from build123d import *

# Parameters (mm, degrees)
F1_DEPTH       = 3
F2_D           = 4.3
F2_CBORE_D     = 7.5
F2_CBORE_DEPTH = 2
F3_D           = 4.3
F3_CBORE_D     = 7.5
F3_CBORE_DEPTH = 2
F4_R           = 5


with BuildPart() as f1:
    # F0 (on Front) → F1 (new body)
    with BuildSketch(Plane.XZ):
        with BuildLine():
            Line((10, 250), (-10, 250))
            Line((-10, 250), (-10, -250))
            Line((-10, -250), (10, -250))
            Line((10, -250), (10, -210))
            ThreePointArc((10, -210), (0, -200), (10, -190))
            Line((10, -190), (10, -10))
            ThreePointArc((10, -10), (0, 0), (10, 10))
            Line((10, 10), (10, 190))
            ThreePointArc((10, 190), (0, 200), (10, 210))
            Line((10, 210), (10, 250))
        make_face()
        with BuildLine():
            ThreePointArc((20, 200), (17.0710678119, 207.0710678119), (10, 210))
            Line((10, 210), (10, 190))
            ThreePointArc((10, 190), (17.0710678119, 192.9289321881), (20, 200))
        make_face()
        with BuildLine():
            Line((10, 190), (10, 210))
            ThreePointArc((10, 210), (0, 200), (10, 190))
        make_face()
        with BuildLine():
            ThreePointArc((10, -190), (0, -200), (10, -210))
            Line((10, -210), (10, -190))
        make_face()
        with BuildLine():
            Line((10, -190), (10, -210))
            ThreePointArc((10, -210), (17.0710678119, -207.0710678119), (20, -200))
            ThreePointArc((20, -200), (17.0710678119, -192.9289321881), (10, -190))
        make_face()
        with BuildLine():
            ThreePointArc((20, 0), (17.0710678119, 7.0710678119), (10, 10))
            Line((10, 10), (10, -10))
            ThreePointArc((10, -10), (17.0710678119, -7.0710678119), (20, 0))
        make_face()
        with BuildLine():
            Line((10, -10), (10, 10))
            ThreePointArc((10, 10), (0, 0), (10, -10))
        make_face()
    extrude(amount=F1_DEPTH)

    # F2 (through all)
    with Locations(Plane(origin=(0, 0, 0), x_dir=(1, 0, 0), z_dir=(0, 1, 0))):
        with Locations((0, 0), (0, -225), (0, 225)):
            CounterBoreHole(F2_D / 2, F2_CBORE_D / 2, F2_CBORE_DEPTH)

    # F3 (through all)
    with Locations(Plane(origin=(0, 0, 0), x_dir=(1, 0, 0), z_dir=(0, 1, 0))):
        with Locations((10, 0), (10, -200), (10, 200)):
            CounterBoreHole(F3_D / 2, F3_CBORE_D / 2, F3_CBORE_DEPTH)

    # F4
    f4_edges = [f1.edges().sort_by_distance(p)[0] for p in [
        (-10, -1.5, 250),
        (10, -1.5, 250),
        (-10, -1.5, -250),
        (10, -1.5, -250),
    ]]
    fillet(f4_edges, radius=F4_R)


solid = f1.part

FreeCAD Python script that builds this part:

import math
import FreeCAD as App
import Part
import Sketcher
from FreeCAD import Vector
Q = App.Units.Quantity


def edges_at(feature, points):
    """Names of the edges that pass closest to the given points."""
    edges = feature.Shape.Edges
    near = lambda p: min(range(len(edges)), key=lambda i: edges[i].distToShape(Part.Vertex(*p))[0])
    return sorted({f"Edge{near(p) + 1}" for p in points})

doc = App.newDocument("Part")
body = doc.addObject("PartDesign::Body", "Body")

# Sketch on XZ plane
sketch1 = body.newObject("Sketcher::SketchObject", "Sketch")
sketch1.AttachmentSupport = (doc.getObject("XZ_Plane"), [""])
sketch1.MapMode = "FlatFace"
sketch1.addGeometry(Part.LineSegment(Vector(10, 250, 0), Vector(-10, 250, 0)), False)
sketch1.addGeometry(Part.LineSegment(Vector(-10, 250, 0), Vector(-10, -250, 0)), False)
sketch1.addGeometry(Part.LineSegment(Vector(-10, -250, 0), Vector(10, -250, 0)), False)
sketch1.addGeometry(Part.LineSegment(Vector(10, -250, 0), Vector(10, -210, 0)), False)
sketch1.addGeometry(Part.ArcOfCircle(Part.Circle(Vector(10, -200, 0), Vector(0, 0, 1), 10), math.radians(-90), math.radians(0)), False)
sketch1.addGeometry(Part.ArcOfCircle(Part.Circle(Vector(10, -200, 0), Vector(0, 0, 1), 10), math.radians(0), math.radians(90)), False)
sketch1.addGeometry(Part.LineSegment(Vector(10, -190, 0), Vector(10, -10, 0)), False)
sketch1.addGeometry(Part.ArcOfCircle(Part.Circle(Vector(10, 0, 0), Vector(0, 0, 1), 10), math.radians(-90), math.radians(0)), False)
sketch1.addGeometry(Part.ArcOfCircle(Part.Circle(Vector(10, 0, 0), Vector(0, 0, 1), 10), math.radians(0), math.radians(90)), False)
sketch1.addGeometry(Part.LineSegment(Vector(10, 10, 0), Vector(10, 190, 0)), False)
sketch1.addGeometry(Part.ArcOfCircle(Part.Circle(Vector(10, 200, 0), Vector(0, 0, 1), 10), math.radians(-90), math.radians(0)), False)
sketch1.addGeometry(Part.ArcOfCircle(Part.Circle(Vector(10, 200, 0), Vector(0, 0, 1), 10), math.radians(0), math.radians(90)), False)
sketch1.addGeometry(Part.LineSegment(Vector(10, 210, 0), Vector(10, 250, 0)), False)
sketch1.addConstraint(Sketcher.Constraint("Coincident", 0, 2, 1, 1))
sketch1.addConstraint(Sketcher.Constraint("Coincident", 1, 2, 2, 1))
sketch1.addConstraint(Sketcher.Constraint("Coincident", 2, 2, 3, 1))
sketch1.addConstraint(Sketcher.Constraint("Coincident", 3, 2, 4, 1))
sketch1.addConstraint(Sketcher.Constraint("Tangent", 4, 2, 5, 1))
sketch1.addConstraint(Sketcher.Constraint("Coincident", 5, 2, 6, 1))
sketch1.addConstraint(Sketcher.Constraint("Coincident", 6, 2, 7, 1))
sketch1.addConstraint(Sketcher.Constraint("Tangent", 7, 2, 8, 1))
sketch1.addConstraint(Sketcher.Constraint("Coincident", 8, 2, 9, 1))
sketch1.addConstraint(Sketcher.Constraint("Coincident", 9, 2, 10, 1))
sketch1.addConstraint(Sketcher.Constraint("Tangent", 10, 2, 11, 1))
sketch1.addConstraint(Sketcher.Constraint("Coincident", 11, 2, 12, 1))
sketch1.addConstraint(Sketcher.Constraint("Coincident", 12, 2, 0, 1))
sketch1.addConstraint(Sketcher.Constraint("Horizontal", 0))
sketch1.addConstraint(Sketcher.Constraint("Vertical", 1))
sketch1.addConstraint(Sketcher.Constraint("Horizontal", 2))
sketch1.addConstraint(Sketcher.Constraint("Vertical", 3))
sketch1.addConstraint(Sketcher.Constraint("Vertical", 6))
sketch1.addConstraint(Sketcher.Constraint("Vertical", 9))
sketch1.addConstraint(Sketcher.Constraint("Vertical", 12))
sketch1.addConstraint(Sketcher.Constraint("Equal", 4, 5))
sketch1.addConstraint(Sketcher.Constraint("Equal", 5, 7))
sketch1.addConstraint(Sketcher.Constraint("Equal", 7, 8))
sketch1.addConstraint(Sketcher.Constraint("Equal", 8, 10))
sketch1.addConstraint(Sketcher.Constraint("Equal", 10, 11))
sketch1.addConstraint(Sketcher.Constraint("Symmetric", 0, 2, 2, 2, -1, 1))
sketch1.addConstraint(Sketcher.Constraint("Symmetric", 4, 3, 10, 3, -1))
sketch1.addConstraint(Sketcher.Constraint("Symmetric", 6, 2, 8, 2, -1))
sketch1.addConstraint(Sketcher.Constraint("PointOnObject", 7, 2, -1))
sketch1.addConstraint(Sketcher.Constraint("Horizontal", 5, 3, 4, 2))
sketch1.addConstraint(Sketcher.Constraint("Horizontal", 11, 3, 10, 2))
sketch1.addConstraint(Sketcher.Constraint("Vertical", 5, 3, 7, 3))
sketch1.addConstraint(Sketcher.Constraint("Vertical", 11, 3, 2, 2))
sketch1.addConstraint(Sketcher.Constraint("Vertical", 3, 2, 5, 2))
sketch1.addConstraint(Sketcher.Constraint("Vertical", 9, 2, 11, 2))
sketch1.addConstraint(Sketcher.Constraint("Radius", 4, Q("10 mm")))
sketch1.addConstraint(Sketcher.Constraint("DistanceX", 0, 2, 0, 1, Q("20 mm")))
sketch1.addConstraint(Sketcher.Constraint("DistanceY", 1, 2, 1, 1, Q("500 mm")))
sketch1.addConstraint(Sketcher.Constraint("DistanceY", 3, 1, 3, 2, Q("40 mm")))
pad1 = body.newObject("PartDesign::Pad", "Pad")
pad1.Profile = sketch1
pad1.Length = 3

# Sketch on XZ plane
sketch2 = body.newObject("Sketcher::SketchObject", "Sketch001")
sketch2.AttachmentSupport = (doc.getObject("XZ_Plane"), [""])
sketch2.MapMode = "FlatFace"
sketch2.addGeometry(Part.Circle(Vector(0, 0, 0), Vector(0, 0, 1), 2.15), False)
sketch2.addGeometry(Part.Circle(Vector(0, 225, 0), Vector(0, 0, 1), 2.15), False)
sketch2.addGeometry(Part.Circle(Vector(0, -225, 0), Vector(0, 0, 1), 2.15), False)
sketch2.addConstraint(Sketcher.Constraint("Coincident", 0, 3, -1, 1))
sketch2.addConstraint(Sketcher.Constraint("Equal", 0, 1))
sketch2.addConstraint(Sketcher.Constraint("Equal", 1, 2))
sketch2.addConstraint(Sketcher.Constraint("Symmetric", 1, 3, 2, 3, -1, 1))
sketch2.addConstraint(Sketcher.Constraint("PointOnObject", 1, 3, -2))
sketch2.addConstraint(Sketcher.Constraint("Diameter", 0, Q("4.3 mm")))
sketch2.addConstraint(Sketcher.Constraint("DistanceY", -1, 1, 1, 3, Q("225 mm")))
doc.recompute()
hole = body.newObject("PartDesign::Hole", "Hole")
hole.Profile = sketch2
hole.ThreadType = "None"
hole.Diameter = 4.3
hole.DepthType = "ThroughAll"
hole.HoleCutType = "Counterbore"
hole.HoleCutDiameter = 7.5
hole.HoleCutDepth = 2
hole.Reversed = True

# Sketch on XZ plane
sketch3 = body.newObject("Sketcher::SketchObject", "Sketch002")
sketch3.AttachmentSupport = (doc.getObject("XZ_Plane"), [""])
sketch3.MapMode = "FlatFace"
sketch3.addGeometry(Part.Circle(Vector(10, 0, 0), Vector(0, 0, 1), 2.15), False)
sketch3.addGeometry(Part.Circle(Vector(10, 200, 0), Vector(0, 0, 1), 2.15), False)
sketch3.addGeometry(Part.Circle(Vector(10, -200, 0), Vector(0, 0, 1), 2.15), False)
sketch3.addConstraint(Sketcher.Constraint("Equal", 0, 1))
sketch3.addConstraint(Sketcher.Constraint("Equal", 1, 2))
sketch3.addConstraint(Sketcher.Constraint("Symmetric", 1, 3, 2, 3, -1))
sketch3.addConstraint(Sketcher.Constraint("PointOnObject", 0, 3, -1))
sketch3.addConstraint(Sketcher.Constraint("Vertical", 0, 3, 1, 3))
sketch3.addConstraint(Sketcher.Constraint("Diameter", 0, Q("4.3 mm")))
sketch3.addConstraint(Sketcher.Constraint("DistanceX", -1, 1, 0, 3, Q("10 mm")))
sketch3.addConstraint(Sketcher.Constraint("DistanceY", -1, 1, 1, 3, Q("200 mm")))
doc.recompute()
hole2 = body.newObject("PartDesign::Hole", "Hole001")
hole2.Profile = sketch3
hole2.ThreadType = "None"
hole2.Diameter = 4.3
hole2.DepthType = "ThroughAll"
hole2.HoleCutType = "Counterbore"
hole2.HoleCutDiameter = 7.5
hole2.HoleCutDepth = 2
hole2.Reversed = True
doc.recompute()

fillet = body.newObject("PartDesign::Fillet", "Fillet")
fillet.Base = (hole2, edges_at(hole2, [
    (-10, -1.5, 250),
    (10, -1.5, 250),
    (-10, -1.5, -250),
    (10, -1.5, -250),
]))
fillet.Radius = 5

doc.recompute()
